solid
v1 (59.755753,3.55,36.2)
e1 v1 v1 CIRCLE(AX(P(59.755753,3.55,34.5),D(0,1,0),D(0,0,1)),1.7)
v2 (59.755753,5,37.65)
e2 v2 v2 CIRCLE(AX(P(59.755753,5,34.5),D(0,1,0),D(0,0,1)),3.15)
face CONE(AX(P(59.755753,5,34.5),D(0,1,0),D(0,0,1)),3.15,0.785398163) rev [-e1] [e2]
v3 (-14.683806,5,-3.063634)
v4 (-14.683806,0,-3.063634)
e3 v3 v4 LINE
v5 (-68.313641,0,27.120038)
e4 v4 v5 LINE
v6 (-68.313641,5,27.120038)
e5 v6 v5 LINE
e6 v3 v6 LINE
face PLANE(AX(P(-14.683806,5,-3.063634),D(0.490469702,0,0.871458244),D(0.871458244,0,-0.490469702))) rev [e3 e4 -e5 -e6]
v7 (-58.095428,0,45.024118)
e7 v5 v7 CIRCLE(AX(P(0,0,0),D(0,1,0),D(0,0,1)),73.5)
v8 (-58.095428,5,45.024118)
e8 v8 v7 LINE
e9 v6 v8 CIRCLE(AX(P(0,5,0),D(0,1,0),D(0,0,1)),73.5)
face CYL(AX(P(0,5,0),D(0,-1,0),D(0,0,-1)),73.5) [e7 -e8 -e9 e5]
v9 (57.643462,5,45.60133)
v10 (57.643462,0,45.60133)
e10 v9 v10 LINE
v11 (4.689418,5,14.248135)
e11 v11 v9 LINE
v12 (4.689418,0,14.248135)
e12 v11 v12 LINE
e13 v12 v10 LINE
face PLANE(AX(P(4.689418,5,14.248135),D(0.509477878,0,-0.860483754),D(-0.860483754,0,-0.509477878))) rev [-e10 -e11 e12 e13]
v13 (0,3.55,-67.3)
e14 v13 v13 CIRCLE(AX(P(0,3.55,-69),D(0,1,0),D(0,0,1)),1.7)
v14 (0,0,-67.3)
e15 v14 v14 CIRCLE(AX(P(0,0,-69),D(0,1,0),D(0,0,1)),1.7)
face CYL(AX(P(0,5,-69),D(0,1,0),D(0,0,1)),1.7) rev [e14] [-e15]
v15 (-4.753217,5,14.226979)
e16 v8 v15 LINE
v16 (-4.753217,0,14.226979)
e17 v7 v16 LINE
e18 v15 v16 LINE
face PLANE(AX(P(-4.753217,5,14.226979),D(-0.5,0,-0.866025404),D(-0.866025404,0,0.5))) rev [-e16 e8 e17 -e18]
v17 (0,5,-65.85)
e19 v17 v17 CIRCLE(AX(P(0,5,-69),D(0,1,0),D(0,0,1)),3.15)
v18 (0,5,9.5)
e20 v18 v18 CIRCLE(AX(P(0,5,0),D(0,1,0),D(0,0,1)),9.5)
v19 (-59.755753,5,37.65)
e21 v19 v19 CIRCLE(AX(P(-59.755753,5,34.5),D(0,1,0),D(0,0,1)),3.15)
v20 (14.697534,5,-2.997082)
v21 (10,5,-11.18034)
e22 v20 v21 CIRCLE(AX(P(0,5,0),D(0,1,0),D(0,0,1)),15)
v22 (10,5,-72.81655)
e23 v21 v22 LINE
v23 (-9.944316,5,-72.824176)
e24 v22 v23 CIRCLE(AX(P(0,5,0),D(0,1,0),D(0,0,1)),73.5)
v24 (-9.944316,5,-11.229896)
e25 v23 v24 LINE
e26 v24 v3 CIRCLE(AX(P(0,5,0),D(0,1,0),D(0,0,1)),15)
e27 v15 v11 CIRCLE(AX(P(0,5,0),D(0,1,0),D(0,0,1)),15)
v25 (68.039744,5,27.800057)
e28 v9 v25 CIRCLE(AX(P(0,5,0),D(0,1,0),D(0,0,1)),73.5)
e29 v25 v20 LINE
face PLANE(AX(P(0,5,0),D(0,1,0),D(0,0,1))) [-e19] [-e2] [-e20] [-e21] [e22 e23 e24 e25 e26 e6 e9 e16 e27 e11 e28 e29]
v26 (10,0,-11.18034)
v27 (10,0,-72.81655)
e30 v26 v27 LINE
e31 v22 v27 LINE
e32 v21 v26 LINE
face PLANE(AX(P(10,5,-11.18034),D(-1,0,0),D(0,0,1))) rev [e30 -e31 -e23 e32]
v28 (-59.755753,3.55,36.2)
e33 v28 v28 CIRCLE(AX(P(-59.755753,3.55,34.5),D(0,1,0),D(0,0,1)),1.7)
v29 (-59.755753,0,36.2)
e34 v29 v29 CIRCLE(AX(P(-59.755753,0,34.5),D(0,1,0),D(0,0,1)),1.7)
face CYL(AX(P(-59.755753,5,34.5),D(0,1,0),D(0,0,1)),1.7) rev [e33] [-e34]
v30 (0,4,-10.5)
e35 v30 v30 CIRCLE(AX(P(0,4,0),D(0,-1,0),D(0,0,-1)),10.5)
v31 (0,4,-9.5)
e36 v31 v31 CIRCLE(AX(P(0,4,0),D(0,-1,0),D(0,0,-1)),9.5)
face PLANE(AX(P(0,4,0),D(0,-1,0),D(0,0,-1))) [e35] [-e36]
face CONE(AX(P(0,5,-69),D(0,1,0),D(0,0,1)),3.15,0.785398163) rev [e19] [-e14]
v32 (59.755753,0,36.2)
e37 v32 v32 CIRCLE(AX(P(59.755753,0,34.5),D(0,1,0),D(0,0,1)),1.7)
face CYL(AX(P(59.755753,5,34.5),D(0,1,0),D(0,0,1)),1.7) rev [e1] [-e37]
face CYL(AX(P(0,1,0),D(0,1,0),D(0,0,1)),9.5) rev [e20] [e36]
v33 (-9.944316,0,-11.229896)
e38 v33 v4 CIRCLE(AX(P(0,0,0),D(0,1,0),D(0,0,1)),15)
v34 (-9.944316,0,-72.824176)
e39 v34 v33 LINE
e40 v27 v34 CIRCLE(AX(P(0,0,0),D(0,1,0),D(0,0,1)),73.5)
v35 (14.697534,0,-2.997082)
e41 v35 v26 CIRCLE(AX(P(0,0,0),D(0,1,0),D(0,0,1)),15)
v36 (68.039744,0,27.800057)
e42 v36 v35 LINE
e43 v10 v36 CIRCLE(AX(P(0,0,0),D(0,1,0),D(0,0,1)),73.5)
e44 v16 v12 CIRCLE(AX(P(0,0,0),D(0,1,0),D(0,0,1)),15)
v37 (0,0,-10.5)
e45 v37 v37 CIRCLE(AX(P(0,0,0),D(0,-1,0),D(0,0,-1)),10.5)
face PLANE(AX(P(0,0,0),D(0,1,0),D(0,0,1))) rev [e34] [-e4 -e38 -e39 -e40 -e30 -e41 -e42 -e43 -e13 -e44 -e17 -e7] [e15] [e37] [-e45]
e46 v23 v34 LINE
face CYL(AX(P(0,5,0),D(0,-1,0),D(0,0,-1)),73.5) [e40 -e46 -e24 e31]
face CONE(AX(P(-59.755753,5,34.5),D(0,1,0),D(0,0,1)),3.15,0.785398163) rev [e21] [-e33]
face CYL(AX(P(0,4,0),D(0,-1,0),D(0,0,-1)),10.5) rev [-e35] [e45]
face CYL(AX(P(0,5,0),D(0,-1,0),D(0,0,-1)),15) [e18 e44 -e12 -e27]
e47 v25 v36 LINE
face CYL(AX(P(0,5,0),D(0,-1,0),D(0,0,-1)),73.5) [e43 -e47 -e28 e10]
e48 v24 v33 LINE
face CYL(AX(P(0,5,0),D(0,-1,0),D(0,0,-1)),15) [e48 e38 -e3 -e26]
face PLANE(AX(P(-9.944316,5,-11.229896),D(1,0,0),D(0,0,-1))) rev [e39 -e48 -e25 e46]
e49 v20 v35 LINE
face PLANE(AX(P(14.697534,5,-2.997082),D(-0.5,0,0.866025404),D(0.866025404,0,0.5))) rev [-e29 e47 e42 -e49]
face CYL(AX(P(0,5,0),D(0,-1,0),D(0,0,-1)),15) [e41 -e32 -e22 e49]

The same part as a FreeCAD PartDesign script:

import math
import FreeCAD as App
import Part
import Sketcher

V = App.Vector
Q = App.Units.Quantity

doc = App.newDocument("Part")
body = doc.addObject("PartDesign::Body", "Body")

# Sketch on XZ plane
sketch1 = body.newObject("Sketcher::SketchObject", "Sketch")
sketch1.AttachmentSupport = (doc.getObject("XZ_Plane"), [""])
sketch1.MapMode = "FlatFace"
sketch1.addGeometry(Part.LineSegment(V(-10, -73, 0), V(-10, -11, 0)), False)
sketch1.addGeometry(Part.ArcOfCircle(Part.Circle(V(0, 0, 0), V(0, 0, 1), 15), math.radians(-168), math.radians(-132)), False)
sketch1.addGeometry(Part.LineSegment(V(-15, -3, 0), V(-68, 27, 0)), False)
sketch1.addGeometry(Part.ArcOfCircle(Part.Circle(V(0, 0, 0), V(0, 0, 1), 73), math.radians(142.22), math.radians(158.35)), False)
sketch1.addGeometry(Part.LineSegment(V(-58, 45, 0), V(-5, 14, 0)), False)
sketch1.addGeometry(Part.ArcOfCircle(Part.Circle(V(0, 0, 0), V(0, 0, 1), 15), math.radians(72), math.radians(108)), False)
sketch1.addGeometry(Part.LineSegment(V(5, 14, 0), V(58, 46, 0)), False)
sketch1.addGeometry(Part.ArcOfCircle(Part.Circle(V(0, 0, 0), V(0, 0, 1), 74), math.radians(22.22), math.radians(38.35)), False)
sketch1.addGeometry(Part.LineSegment(V(68, 28, 0), V(15, -3, 0)), False)
sketch1.addGeometry(Part.ArcOfCircle(Part.Circle(V(0, 0, 0), V(0, 0, 1), 15), math.radians(-48), math.radians(-12)), False)
sketch1.addGeometry(Part.LineSegment(V(10, -11, 0), V(10, -73, 0)), False)
sketch1.addGeometry(Part.ArcOfCircle(Part.Circle(V(0, 0, 0), V(0, 0, 1), 73), math.radians(-97.78), math.radians(-82.18)), False)
sketch1.addConstraint(Sketcher.Constraint("Coincident", 0, 2, 1, 2))
sketch1.addConstraint(Sketcher.Constraint("Coincident", 1, 1, 2, 1))
sketch1.addConstraint(Sketcher.Constraint("Coincident", 2, 2, 3, 2))
sketch1.addConstraint(Sketcher.Constraint("Coincident", 3, 1, 4, 1))
sketch1.addConstraint(Sketcher.Constraint("Coincident", 4, 2, 5, 2))
sketch1.addConstraint(Sketcher.Constraint("Coincident", 5, 1, 6, 1))
sketch1.addConstraint(Sketcher.Constraint("Coincident", 6, 2, 7, 2))
sketch1.addConstraint(Sketcher.Constraint("Coincident", 7, 1, 8, 1))
sketch1.addConstraint(Sketcher.Constraint("Coincident", 8, 2, 9, 2))
sketch1.addConstraint(Sketcher.Constraint("Coincident", 9, 1, 10, 1))
sketch1.addConstraint(Sketcher.Constraint("Coincident", 10, 2, 11, 2))
sketch1.addConstraint(Sketcher.Constraint("Coincident", 11, 1, 0, 1))
sketch1.addConstraint(Sketcher.Constraint("Vertical", 0))
sketch1.addConstraint(Sketcher.Constraint("Vertical", 10))
sketch1.addConstraint(Sketcher.Constraint("Coincident", 1, 3, -1, 1))
sketch1.addConstraint(Sketcher.Constraint("Coincident", 3, 3, -1, 1))
sketch1.addConstraint(Sketcher.Constraint("Coincident", 5, 3, -1, 1))
sketch1.addConstraint(Sketcher.Constraint("Coincident", 7, 3, -1, 1))
sketch1.addConstraint(Sketcher.Constraint("Coincident", 9, 3, -1, 1))
sketch1.addConstraint(Sketcher.Constraint("Coincident", 11, 3, -1, 1))
sketch1.addConstraint(Sketcher.Constraint("Equal", 1, 5))
sketch1.addConstraint(Sketcher.Constraint("Equal", 3, 7))
sketch1.addConstraint(Sketcher.Constraint("Equal", 5, 9))
sketch1.addConstraint(Sketcher.Constraint("Equal", 7, 11))
sketch1.addConstraint(Sketcher.Constraint("Equal", 4, 8))
sketch1.addConstraint(Sketcher.Constraint("Radius", 1, Q("15 mm")))
sketch1.addConstraint(Sketcher.Constraint("Radius", 3, Q("73.5 mm")))
sketch1.addConstraint(Sketcher.Constraint("Angle", 4, Q("-30 deg")))
sketch1.addConstraint(Sketcher.Constraint("Angle", 8, Q("-150 deg")))
sketch1.addConstraint(Sketcher.Constraint("DistanceX", -1, 1, 9, 1, Q("10 mm")))
sketch1.addConstraint(Sketcher.Constraint("DistanceY", 0, 1, 0, 2, Q("61.594279 mm")))
sketch1.addConstraint(Sketcher.Constraint("Distance", 2, Q("61.540339 mm")))
sketch1.addConstraint(Sketcher.Constraint("Distance", 4, Q("61.594279 mm")))
sketch1.addConstraint(Sketcher.Constraint("DistanceX", 2, 2, -1, 1, Q("68.313641 mm")))
sketch1.addConstraint(Sketcher.Constraint("DistanceY", -1, 1, 6, 2, Q("45.60133 mm")))
sketch1.addConstraint(Sketcher.Constraint("DistanceY", 5, 1, 7, 1, Q("13.551922 mm")))
pad1 = body.newObject("PartDesign::Pad", "Pad")
pad1.Profile = sketch1
pad1.Length = 5
pad1.Reversed = True

# Sketch on XZ plane
sketch2 = body.newObject("Sketcher::SketchObject", "Sketch001")
sketch2.AttachmentSupport = (doc.getObject("XZ_Plane"), [""])
sketch2.MapMode = "FlatFace"
sketch2.AttachmentOffset = App.Placement(V(0, 0, -5), App.Rotation())
sketch2.addGeometry(Part.Circle(V(0, -69, 0), V(0, 0, 1), 1.6), False)
sketch2.addGeometry(Part.Circle(V(59.8, 34.5, 0), V(0, 0, 1), 1.6), False)
sketch2.addGeometry(Part.Circle(V(-59.8, 34.5, 0), V(0, 0, 1), 1.6), False)
sketch2.addConstraint(Sketcher.Constraint("Equal", 0, 1))
sketch2.addConstraint(Sketcher.Constraint("Equal", 1, 2))
sketch2.addConstraint(Sketcher.Constraint("Symmetric", 1, 3, 2, 3, -2))
sketch2.addConstraint(Sketcher.Constraint("PointOnObject", 0, 3, -2))
sketch2.addConstraint(Sketcher.Constraint("Diameter", 0, Q("3.2 mm")))
sketch2.addConstraint(Sketcher.Constraint("DistanceY", 0, 3, -1, 1, Q("69 mm")))
sketch2.addConstraint(Sketcher.Constraint("DistanceY", -1, 1, 1, 3, Q("34.5 mm")))
sketch2.addConstraint(Sketcher.Constraint("DistanceX", -1, 1, 1, 3, Q("59.755753 mm")))
pocket1 = body.newObject("PartDesign::Pocket", "Pocket")
pocket1.Profile = sketch2
pocket1.Length = 20
pocket1.Midplane = True

# Sketch on XZ plane
sketch3 = body.newObject("Sketcher::SketchObject", "Sketch002")
sketch3.AttachmentSupport = (doc.getObject("XZ_Plane"), [""])
sketch3.MapMode = "FlatFace"
sketch3.addGeometry(Part.Circle(V(0, 0, 0), V(0, 0, 1), 10), False)
sketch3.addConstraint(Sketcher.Constraint("Coincident", 0, 3, -1, 1))
sketch3.addConstraint(Sketcher.Constraint("Diameter", 0, Q("21 mm")))
pocket2 = body.newObject("PartDesign::Pocket", "Pocket001")
pocket2.Profile = sketch3
pocket2.Length = 4

# Sketch on XZ plane
sketch4 = body.newObject("Sketcher::SketchObject", "Sketch003")
sketch4.AttachmentSupport = (doc.getObject("XZ_Plane"), [""])
sketch4.MapMode = "FlatFace"
sketch4.AttachmentOffset = App.Placement(V(0, 0, -5), App.Rotation())
sketch4.addGeometry(Part.Circle(V(0, 0, 0), V(0, 0, 1), 10), False)
sketch4.addConstraint(Sketcher.Constraint("Coincident", 0, 3, -1, 1))
sketch4.addConstraint(Sketcher.Constraint("Diameter", 0, Q("19 mm")))
pocket3 = body.newObject("PartDesign::Pocket", "Pocket002")
pocket3.Profile = sketch4
pocket3.Length = 4
pocket3.Reversed = True

# Sketch on XZ plane
sketch5 = body.newObject("Sketcher::SketchObject", "Sketch004")
sketch5.AttachmentSupport = (doc.getObject("XZ_Plane"), [""])
sketch5.MapMode = "FlatFace"
sketch5.AttachmentOffset = App.Placement(V(0, 0, -5), App.Rotation())
sketch5.addGeometry(Part.Circle(V(-59.8, 34.5, 0), V(0, 0, 1), 1.7), False)
sketch5.addGeometry(Part.Circle(V(0, -69, 0), V(0, 0, 1), 1.7), False)
sketch5.addGeometry(Part.Circle(V(59.8, 34.5, 0), V(0, 0, 1), 1.7), False)
sketch5.addConstraint(Sketcher.Constraint("Equal", 0, 1))
sketch5.addConstraint(Sketcher.Constraint("Equal", 1, 2))
sketch5.addConstraint(Sketcher.Constraint("Symmetric", 0, 3, 2, 3, -2))
sketch5.addConstraint(Sketcher.Constraint("PointOnObject", 1, 3, -2))
sketch5.addConstraint(Sketcher.Constraint("Diameter", 0, Q("3.4 mm")))
sketch5.addConstraint(Sketcher.Constraint("DistanceY", 1, 3, -1, 1, Q("69 mm")))
sketch5.addConstraint(Sketcher.Constraint("DistanceY", -1, 1, 0, 3, Q("34.5 mm")))
sketch5.addConstraint(Sketcher.Constraint("DistanceX", 0, 3, -1, 1, Q("59.755753 mm")))
doc.recompute()
hole = body.newObject("PartDesign::Hole", "Hole")
hole.Profile = sketch5
hole.ThreadType = "None"
hole.Diameter = 3.4
hole.DepthType = "ThroughAll"
hole.HoleCutType = "Countersink"
hole.HoleCutDiameter = 6.3
hole.HoleCutCountersinkAngle = 90
hole.Reversed = True

doc.recompute()
